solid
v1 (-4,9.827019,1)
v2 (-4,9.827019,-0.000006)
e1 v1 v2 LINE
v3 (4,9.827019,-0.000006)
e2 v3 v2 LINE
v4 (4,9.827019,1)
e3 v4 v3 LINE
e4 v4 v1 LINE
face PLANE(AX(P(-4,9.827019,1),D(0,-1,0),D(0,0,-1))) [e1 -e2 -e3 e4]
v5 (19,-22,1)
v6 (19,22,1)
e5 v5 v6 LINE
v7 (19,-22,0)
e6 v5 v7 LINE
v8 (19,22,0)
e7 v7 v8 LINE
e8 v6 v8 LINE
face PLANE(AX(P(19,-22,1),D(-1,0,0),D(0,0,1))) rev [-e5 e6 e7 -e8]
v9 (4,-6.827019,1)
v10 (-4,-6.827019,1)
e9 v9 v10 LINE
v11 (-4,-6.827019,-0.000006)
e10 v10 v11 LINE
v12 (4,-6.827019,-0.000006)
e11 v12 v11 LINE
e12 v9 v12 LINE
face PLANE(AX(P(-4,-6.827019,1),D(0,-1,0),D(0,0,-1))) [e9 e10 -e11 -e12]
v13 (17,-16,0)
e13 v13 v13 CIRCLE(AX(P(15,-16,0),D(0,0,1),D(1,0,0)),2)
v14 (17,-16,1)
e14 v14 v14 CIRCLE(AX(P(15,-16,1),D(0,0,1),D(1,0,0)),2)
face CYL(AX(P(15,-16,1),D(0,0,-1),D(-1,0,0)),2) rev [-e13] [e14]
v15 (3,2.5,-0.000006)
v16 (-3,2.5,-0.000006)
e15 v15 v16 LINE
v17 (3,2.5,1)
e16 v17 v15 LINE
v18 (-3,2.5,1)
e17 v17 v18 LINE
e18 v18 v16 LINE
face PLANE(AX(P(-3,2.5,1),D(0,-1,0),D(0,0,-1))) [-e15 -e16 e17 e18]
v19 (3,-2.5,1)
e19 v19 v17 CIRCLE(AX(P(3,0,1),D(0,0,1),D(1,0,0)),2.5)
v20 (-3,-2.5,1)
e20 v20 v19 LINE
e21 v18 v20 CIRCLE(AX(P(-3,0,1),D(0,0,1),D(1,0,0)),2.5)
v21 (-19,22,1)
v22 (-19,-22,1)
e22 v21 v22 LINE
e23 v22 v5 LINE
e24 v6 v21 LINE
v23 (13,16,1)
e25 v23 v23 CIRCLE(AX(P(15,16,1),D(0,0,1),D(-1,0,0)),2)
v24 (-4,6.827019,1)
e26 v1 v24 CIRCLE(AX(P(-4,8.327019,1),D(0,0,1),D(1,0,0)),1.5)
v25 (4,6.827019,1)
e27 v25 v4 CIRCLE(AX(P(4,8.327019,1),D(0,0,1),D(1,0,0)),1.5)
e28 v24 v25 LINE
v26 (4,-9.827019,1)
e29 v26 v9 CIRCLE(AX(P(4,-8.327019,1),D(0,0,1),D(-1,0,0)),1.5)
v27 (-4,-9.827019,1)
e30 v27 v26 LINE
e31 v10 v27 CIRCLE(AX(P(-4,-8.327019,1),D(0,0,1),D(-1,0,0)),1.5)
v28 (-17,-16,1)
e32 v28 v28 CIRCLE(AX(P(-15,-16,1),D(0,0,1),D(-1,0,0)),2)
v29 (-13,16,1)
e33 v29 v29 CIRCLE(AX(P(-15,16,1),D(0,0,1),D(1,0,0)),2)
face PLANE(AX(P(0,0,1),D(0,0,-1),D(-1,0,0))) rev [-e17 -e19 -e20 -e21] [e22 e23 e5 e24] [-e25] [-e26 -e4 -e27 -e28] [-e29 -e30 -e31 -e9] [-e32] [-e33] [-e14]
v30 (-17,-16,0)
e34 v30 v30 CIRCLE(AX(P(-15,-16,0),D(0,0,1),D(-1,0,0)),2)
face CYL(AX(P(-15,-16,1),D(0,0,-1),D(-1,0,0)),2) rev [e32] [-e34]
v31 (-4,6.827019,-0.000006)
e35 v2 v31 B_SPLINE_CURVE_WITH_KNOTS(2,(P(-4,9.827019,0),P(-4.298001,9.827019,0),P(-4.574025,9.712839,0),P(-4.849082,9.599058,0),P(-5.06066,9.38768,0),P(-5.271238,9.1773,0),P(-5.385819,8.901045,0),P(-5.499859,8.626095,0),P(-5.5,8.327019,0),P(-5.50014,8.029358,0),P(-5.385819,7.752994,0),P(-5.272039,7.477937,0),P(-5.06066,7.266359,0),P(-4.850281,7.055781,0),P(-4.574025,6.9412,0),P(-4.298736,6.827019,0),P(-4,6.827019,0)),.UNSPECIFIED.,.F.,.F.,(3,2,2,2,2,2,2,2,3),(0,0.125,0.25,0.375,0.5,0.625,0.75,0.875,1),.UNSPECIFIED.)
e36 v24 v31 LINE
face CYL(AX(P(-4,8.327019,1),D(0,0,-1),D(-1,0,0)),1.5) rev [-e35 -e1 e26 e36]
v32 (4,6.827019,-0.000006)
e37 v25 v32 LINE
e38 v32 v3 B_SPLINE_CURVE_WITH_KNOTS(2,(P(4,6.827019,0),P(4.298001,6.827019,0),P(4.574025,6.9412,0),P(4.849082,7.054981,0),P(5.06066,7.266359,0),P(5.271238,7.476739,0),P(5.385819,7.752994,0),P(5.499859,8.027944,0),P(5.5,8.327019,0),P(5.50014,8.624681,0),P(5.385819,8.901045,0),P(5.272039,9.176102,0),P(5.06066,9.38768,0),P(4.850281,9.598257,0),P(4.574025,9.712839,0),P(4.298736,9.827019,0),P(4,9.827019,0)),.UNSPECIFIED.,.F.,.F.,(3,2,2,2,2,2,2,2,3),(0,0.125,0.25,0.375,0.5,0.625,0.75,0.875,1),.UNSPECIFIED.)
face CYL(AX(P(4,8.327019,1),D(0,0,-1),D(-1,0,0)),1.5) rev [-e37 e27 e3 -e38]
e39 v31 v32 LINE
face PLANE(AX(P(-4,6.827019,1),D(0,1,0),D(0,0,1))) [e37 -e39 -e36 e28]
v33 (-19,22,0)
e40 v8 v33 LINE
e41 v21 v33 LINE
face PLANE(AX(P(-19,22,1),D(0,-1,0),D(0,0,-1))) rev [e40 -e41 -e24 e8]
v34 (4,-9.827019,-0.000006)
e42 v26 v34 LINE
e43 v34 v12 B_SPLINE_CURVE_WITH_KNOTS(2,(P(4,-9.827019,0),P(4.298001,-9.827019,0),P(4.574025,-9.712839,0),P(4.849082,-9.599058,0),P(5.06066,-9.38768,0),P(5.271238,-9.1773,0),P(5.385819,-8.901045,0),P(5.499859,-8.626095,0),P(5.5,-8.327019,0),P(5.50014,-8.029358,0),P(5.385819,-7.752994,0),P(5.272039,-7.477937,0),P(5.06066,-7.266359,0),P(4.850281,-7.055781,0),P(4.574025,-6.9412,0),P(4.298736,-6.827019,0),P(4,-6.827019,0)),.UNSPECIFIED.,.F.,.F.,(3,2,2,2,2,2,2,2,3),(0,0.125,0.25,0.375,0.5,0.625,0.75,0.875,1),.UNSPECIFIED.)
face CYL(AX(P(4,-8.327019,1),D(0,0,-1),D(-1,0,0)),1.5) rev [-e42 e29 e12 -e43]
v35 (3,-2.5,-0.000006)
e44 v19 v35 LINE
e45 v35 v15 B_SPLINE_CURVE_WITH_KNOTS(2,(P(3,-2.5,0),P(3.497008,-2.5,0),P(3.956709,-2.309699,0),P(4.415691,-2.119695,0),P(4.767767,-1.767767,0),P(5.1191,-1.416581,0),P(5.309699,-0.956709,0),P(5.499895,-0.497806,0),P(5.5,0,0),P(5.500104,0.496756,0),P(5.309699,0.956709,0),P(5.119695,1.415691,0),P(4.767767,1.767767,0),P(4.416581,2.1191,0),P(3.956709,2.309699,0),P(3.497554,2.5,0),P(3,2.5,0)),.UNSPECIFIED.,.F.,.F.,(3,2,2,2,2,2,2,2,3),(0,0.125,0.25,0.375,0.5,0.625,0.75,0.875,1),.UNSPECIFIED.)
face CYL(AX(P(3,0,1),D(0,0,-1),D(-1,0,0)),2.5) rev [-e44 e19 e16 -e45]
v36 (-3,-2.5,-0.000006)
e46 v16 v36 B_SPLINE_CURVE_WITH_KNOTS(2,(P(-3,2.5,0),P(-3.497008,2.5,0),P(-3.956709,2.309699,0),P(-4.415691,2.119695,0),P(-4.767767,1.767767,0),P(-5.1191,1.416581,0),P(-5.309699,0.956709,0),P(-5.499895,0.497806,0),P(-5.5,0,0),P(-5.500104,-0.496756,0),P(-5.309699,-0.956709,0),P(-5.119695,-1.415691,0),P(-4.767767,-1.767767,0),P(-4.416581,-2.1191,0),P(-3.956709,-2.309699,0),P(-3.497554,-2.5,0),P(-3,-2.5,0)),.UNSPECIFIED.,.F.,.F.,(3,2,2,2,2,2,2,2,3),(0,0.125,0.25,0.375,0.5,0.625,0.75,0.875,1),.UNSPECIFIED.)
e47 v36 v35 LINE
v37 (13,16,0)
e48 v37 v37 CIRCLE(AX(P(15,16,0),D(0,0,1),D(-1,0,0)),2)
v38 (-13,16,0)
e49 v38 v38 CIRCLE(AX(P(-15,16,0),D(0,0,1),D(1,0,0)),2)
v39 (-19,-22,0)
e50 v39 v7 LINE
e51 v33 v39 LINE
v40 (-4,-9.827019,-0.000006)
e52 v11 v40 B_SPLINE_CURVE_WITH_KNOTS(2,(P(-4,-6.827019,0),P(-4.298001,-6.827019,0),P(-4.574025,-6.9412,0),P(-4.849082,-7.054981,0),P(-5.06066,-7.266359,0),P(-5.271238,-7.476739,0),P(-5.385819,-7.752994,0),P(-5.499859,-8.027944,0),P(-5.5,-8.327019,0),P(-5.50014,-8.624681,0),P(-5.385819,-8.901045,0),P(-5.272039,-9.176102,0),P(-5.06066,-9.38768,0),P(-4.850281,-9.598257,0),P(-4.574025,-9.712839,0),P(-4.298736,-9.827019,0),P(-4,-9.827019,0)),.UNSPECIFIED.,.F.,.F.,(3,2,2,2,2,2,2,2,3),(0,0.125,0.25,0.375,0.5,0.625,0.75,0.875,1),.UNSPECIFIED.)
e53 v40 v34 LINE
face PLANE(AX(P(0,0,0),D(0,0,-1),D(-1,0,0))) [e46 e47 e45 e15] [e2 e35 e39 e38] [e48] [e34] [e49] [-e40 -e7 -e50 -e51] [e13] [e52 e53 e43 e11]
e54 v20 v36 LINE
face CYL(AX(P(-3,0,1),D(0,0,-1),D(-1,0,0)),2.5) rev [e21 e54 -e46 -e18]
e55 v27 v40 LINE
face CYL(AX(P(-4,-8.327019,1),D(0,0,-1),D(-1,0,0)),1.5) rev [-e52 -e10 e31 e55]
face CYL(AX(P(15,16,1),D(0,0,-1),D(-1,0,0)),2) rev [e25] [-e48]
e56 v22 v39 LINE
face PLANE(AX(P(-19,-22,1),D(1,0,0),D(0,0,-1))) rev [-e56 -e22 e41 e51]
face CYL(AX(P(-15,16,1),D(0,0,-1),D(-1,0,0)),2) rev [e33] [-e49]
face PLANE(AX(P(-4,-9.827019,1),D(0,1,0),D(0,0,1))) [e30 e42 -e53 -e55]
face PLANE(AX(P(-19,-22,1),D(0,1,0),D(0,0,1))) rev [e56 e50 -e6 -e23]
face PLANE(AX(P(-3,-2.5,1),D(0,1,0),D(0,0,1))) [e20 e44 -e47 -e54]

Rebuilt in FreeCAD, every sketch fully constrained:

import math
import FreeCAD as App
import Part
import Sketcher

V = App.Vector


def add_polygon(sketch, points):
    """Adds a closed chain of lines whose ends are joined by coincident constraints."""
    first, n = sketch.GeometryCount, len(points)
    for a, b in zip(points, points[1:] + points[:1]):
        sketch.addGeometry(Part.LineSegment(App.Vector(*a, 0), App.Vector(*b, 0)), False)
    for i in range(n):
        sketch.addConstraint(Sketcher.Constraint("Coincident", first + i, 2, first + (i + 1) % n, 1))

doc = App.newDocument("Part")
body = doc.addObject("PartDesign::Body", "Body")

sketch1 = body.newObject("Sketcher::SketchObject", "Sketch")
sketch1.AttachmentSupport = (doc.getObject("XY_Plane"), [""])
sketch1.MapMode = "FlatFace"
add_polygon(sketch1, [(-19, 22), (-19, -22), (19, -22), (19, 22)])
sketch1.addGeometry(Part.Circle(V(-15, -16, 0), V(0, 0, 1), 2), False)
sketch1.addGeometry(Part.Circle(V(15, -16, 0), V(0, 0, 1), 2), False)
sketch1.addGeometry(Part.Circle(V(-15, 16, 0), V(0, 0, 1), 2), False)
sketch1.addGeometry(Part.Circle(V(15, 16, 0), V(0, 0, 1), 2), False)
sketch1.addConstraint([
    Sketcher.Constraint("Vertical", 0),
    Sketcher.Constraint("Horizontal", 1),
    Sketcher.Constraint("Vertical", 2),
    Sketcher.Constraint("Horizontal", 3),
    Sketcher.Constraint("Equal", 4, 5),
    Sketcher.Constraint("Equal", 5, 6),
    Sketcher.Constraint("Equal", 6, 7),
    Sketcher.Constraint("Symmetric", 5, 3, 6, 3, -1, 1),
    Sketcher.Constraint("Symmetric", 4, 3, 7, 3, -1, 1),
    Sketcher.Constraint("Symmetric", 0, 2, 2, 2, -1, 1),
    Sketcher.Constraint("Symmetric", 4, 3, 5, 3, -2),
    Sketcher.Constraint("Diameter", 4, 4.0),
    Sketcher.Constraint("DistanceX", 1, 1, 1, 2, 38.0),
    Sketcher.Constraint("DistanceY", 0, 2, 0, 1, 44.0),
    Sketcher.Constraint("DistanceX", 4, 3, -1, 1, 15.0),
    Sketcher.Constraint("DistanceY", 4, 3, -1, 1, 16.0),
])
pad1 = body.newObject("PartDesign::Pad", "Pad")
pad1.Profile = sketch1
pad1.Length = 1

sketch2 = body.newObject("Sketcher::SketchObject", "Sketch001")
sketch2.AttachmentSupport = (doc.getObject("XY_Plane"), [""])
sketch2.MapMode = "FlatFace"
sketch2.addGeometry([
    Part.LineSegment(V(3, 2.5, 0), V(-3, 2.5, 0)),
    Part.ArcOfCircle(Part.Circle(V(-3, 0, 0), V(0, 0, 1), 2.5), math.radians(90), math.radians(270)),
    Part.LineSegment(V(-3, -2.5, 0), V(3, -2.5, 0)),
    Part.ArcOfCircle(Part.Circle(V(3, 0, 0), V(0, 0, 1), 2.5), math.radians(-90), math.radians(90)),
    Part.LineSegment(V(4, 9.8, 0), V(-4, 9.8, 0)),
    Part.ArcOfCircle(Part.Circle(V(-4, 8.3, 0), V(0, 0, 1), 1.5), math.radians(90), math.radians(270)),
    Part.LineSegment(V(-4, 6.8, 0), V(4, 6.8, 0)),
    Part.ArcOfCircle(Part.Circle(V(4, 8.3, 0), V(0, 0, 1), 1.5), math.radians(-90), math.radians(90)),
    Part.LineSegment(V(-4, -9.8, 0), V(4, -9.8, 0)),
    Part.ArcOfCircle(Part.Circle(V(4, -8.3, 0), V(0, 0, 1), 1.5), math.radians(-90), math.radians(90)),
    Part.LineSegment(V(4, -6.8, 0), V(-4, -6.8, 0)),
    Part.ArcOfCircle(Part.Circle(V(-4, -8.3, 0), V(0, 0, 1), 1.5), math.radians(90), math.radians(270)),
], False)
sketch2.addConstraint([
    Sketcher.Constraint("Tangent", 0, 2, 1, 1),
    Sketcher.Constraint("Tangent", 1, 2, 2, 1),
    Sketcher.Constraint("Tangent", 2, 2, 3, 1),
    Sketcher.Constraint("Tangent", 3, 2, 0, 1),
    Sketcher.Constraint("Tangent", 4, 2, 5, 1),
    Sketcher.Constraint("Tangent", 5, 2, 6, 1),
    Sketcher.Constraint("Tangent", 6, 2, 7, 1),
    Sketcher.Constraint("Tangent", 7, 2, 4, 1),
    Sketcher.Constraint("Tangent", 8, 2, 9, 1),
    Sketcher.Constraint("Tangent", 9, 2, 10, 1),
    Sketcher.Constraint("Tangent", 10, 2, 11, 1),
    Sketcher.Constraint("Tangent", 11, 2, 8, 1),
    Sketcher.Constraint("Horizontal", 0),
    Sketcher.Constraint("Horizontal", 2),
    Sketcher.Constraint("Horizontal", 4),
    Sketcher.Constraint("Horizontal", 6),
    Sketcher.Constraint("Horizontal", 8),
    Sketcher.Constraint("Horizontal", 10),
    Sketcher.Constraint("Equal", 7, 9),
    Sketcher.Constraint("Symmetric", 1, 3, 3, 3, -1, 1),
    Sketcher.Constraint("Symmetric", 5, 3, 9, 3, -1, 1),
    Sketcher.Constraint("Vertical", 7, 3, 9, 3),
    Sketcher.Constraint("Vertical", 5, 3, 11, 3),
    Sketcher.Constraint("Radius", 1, 2.5),
    Sketcher.Constraint("Radius", 5, 1.5),
    Sketcher.Constraint("DistanceX", 0, 2, 0, 1, 6.0),
    Sketcher.Constraint("DistanceX", 4, 2, 4, 1, 8.0),
    Sketcher.Constraint("DistanceY", -1, 1, 5, 3, 8.327019),
])
pocket1 = body.newObject("PartDesign::Pocket", "Pocket")
pocket1.Profile = sketch2
pocket1.Type = "ThroughAll"
pocket1.Midplane = True

doc.recompute()
